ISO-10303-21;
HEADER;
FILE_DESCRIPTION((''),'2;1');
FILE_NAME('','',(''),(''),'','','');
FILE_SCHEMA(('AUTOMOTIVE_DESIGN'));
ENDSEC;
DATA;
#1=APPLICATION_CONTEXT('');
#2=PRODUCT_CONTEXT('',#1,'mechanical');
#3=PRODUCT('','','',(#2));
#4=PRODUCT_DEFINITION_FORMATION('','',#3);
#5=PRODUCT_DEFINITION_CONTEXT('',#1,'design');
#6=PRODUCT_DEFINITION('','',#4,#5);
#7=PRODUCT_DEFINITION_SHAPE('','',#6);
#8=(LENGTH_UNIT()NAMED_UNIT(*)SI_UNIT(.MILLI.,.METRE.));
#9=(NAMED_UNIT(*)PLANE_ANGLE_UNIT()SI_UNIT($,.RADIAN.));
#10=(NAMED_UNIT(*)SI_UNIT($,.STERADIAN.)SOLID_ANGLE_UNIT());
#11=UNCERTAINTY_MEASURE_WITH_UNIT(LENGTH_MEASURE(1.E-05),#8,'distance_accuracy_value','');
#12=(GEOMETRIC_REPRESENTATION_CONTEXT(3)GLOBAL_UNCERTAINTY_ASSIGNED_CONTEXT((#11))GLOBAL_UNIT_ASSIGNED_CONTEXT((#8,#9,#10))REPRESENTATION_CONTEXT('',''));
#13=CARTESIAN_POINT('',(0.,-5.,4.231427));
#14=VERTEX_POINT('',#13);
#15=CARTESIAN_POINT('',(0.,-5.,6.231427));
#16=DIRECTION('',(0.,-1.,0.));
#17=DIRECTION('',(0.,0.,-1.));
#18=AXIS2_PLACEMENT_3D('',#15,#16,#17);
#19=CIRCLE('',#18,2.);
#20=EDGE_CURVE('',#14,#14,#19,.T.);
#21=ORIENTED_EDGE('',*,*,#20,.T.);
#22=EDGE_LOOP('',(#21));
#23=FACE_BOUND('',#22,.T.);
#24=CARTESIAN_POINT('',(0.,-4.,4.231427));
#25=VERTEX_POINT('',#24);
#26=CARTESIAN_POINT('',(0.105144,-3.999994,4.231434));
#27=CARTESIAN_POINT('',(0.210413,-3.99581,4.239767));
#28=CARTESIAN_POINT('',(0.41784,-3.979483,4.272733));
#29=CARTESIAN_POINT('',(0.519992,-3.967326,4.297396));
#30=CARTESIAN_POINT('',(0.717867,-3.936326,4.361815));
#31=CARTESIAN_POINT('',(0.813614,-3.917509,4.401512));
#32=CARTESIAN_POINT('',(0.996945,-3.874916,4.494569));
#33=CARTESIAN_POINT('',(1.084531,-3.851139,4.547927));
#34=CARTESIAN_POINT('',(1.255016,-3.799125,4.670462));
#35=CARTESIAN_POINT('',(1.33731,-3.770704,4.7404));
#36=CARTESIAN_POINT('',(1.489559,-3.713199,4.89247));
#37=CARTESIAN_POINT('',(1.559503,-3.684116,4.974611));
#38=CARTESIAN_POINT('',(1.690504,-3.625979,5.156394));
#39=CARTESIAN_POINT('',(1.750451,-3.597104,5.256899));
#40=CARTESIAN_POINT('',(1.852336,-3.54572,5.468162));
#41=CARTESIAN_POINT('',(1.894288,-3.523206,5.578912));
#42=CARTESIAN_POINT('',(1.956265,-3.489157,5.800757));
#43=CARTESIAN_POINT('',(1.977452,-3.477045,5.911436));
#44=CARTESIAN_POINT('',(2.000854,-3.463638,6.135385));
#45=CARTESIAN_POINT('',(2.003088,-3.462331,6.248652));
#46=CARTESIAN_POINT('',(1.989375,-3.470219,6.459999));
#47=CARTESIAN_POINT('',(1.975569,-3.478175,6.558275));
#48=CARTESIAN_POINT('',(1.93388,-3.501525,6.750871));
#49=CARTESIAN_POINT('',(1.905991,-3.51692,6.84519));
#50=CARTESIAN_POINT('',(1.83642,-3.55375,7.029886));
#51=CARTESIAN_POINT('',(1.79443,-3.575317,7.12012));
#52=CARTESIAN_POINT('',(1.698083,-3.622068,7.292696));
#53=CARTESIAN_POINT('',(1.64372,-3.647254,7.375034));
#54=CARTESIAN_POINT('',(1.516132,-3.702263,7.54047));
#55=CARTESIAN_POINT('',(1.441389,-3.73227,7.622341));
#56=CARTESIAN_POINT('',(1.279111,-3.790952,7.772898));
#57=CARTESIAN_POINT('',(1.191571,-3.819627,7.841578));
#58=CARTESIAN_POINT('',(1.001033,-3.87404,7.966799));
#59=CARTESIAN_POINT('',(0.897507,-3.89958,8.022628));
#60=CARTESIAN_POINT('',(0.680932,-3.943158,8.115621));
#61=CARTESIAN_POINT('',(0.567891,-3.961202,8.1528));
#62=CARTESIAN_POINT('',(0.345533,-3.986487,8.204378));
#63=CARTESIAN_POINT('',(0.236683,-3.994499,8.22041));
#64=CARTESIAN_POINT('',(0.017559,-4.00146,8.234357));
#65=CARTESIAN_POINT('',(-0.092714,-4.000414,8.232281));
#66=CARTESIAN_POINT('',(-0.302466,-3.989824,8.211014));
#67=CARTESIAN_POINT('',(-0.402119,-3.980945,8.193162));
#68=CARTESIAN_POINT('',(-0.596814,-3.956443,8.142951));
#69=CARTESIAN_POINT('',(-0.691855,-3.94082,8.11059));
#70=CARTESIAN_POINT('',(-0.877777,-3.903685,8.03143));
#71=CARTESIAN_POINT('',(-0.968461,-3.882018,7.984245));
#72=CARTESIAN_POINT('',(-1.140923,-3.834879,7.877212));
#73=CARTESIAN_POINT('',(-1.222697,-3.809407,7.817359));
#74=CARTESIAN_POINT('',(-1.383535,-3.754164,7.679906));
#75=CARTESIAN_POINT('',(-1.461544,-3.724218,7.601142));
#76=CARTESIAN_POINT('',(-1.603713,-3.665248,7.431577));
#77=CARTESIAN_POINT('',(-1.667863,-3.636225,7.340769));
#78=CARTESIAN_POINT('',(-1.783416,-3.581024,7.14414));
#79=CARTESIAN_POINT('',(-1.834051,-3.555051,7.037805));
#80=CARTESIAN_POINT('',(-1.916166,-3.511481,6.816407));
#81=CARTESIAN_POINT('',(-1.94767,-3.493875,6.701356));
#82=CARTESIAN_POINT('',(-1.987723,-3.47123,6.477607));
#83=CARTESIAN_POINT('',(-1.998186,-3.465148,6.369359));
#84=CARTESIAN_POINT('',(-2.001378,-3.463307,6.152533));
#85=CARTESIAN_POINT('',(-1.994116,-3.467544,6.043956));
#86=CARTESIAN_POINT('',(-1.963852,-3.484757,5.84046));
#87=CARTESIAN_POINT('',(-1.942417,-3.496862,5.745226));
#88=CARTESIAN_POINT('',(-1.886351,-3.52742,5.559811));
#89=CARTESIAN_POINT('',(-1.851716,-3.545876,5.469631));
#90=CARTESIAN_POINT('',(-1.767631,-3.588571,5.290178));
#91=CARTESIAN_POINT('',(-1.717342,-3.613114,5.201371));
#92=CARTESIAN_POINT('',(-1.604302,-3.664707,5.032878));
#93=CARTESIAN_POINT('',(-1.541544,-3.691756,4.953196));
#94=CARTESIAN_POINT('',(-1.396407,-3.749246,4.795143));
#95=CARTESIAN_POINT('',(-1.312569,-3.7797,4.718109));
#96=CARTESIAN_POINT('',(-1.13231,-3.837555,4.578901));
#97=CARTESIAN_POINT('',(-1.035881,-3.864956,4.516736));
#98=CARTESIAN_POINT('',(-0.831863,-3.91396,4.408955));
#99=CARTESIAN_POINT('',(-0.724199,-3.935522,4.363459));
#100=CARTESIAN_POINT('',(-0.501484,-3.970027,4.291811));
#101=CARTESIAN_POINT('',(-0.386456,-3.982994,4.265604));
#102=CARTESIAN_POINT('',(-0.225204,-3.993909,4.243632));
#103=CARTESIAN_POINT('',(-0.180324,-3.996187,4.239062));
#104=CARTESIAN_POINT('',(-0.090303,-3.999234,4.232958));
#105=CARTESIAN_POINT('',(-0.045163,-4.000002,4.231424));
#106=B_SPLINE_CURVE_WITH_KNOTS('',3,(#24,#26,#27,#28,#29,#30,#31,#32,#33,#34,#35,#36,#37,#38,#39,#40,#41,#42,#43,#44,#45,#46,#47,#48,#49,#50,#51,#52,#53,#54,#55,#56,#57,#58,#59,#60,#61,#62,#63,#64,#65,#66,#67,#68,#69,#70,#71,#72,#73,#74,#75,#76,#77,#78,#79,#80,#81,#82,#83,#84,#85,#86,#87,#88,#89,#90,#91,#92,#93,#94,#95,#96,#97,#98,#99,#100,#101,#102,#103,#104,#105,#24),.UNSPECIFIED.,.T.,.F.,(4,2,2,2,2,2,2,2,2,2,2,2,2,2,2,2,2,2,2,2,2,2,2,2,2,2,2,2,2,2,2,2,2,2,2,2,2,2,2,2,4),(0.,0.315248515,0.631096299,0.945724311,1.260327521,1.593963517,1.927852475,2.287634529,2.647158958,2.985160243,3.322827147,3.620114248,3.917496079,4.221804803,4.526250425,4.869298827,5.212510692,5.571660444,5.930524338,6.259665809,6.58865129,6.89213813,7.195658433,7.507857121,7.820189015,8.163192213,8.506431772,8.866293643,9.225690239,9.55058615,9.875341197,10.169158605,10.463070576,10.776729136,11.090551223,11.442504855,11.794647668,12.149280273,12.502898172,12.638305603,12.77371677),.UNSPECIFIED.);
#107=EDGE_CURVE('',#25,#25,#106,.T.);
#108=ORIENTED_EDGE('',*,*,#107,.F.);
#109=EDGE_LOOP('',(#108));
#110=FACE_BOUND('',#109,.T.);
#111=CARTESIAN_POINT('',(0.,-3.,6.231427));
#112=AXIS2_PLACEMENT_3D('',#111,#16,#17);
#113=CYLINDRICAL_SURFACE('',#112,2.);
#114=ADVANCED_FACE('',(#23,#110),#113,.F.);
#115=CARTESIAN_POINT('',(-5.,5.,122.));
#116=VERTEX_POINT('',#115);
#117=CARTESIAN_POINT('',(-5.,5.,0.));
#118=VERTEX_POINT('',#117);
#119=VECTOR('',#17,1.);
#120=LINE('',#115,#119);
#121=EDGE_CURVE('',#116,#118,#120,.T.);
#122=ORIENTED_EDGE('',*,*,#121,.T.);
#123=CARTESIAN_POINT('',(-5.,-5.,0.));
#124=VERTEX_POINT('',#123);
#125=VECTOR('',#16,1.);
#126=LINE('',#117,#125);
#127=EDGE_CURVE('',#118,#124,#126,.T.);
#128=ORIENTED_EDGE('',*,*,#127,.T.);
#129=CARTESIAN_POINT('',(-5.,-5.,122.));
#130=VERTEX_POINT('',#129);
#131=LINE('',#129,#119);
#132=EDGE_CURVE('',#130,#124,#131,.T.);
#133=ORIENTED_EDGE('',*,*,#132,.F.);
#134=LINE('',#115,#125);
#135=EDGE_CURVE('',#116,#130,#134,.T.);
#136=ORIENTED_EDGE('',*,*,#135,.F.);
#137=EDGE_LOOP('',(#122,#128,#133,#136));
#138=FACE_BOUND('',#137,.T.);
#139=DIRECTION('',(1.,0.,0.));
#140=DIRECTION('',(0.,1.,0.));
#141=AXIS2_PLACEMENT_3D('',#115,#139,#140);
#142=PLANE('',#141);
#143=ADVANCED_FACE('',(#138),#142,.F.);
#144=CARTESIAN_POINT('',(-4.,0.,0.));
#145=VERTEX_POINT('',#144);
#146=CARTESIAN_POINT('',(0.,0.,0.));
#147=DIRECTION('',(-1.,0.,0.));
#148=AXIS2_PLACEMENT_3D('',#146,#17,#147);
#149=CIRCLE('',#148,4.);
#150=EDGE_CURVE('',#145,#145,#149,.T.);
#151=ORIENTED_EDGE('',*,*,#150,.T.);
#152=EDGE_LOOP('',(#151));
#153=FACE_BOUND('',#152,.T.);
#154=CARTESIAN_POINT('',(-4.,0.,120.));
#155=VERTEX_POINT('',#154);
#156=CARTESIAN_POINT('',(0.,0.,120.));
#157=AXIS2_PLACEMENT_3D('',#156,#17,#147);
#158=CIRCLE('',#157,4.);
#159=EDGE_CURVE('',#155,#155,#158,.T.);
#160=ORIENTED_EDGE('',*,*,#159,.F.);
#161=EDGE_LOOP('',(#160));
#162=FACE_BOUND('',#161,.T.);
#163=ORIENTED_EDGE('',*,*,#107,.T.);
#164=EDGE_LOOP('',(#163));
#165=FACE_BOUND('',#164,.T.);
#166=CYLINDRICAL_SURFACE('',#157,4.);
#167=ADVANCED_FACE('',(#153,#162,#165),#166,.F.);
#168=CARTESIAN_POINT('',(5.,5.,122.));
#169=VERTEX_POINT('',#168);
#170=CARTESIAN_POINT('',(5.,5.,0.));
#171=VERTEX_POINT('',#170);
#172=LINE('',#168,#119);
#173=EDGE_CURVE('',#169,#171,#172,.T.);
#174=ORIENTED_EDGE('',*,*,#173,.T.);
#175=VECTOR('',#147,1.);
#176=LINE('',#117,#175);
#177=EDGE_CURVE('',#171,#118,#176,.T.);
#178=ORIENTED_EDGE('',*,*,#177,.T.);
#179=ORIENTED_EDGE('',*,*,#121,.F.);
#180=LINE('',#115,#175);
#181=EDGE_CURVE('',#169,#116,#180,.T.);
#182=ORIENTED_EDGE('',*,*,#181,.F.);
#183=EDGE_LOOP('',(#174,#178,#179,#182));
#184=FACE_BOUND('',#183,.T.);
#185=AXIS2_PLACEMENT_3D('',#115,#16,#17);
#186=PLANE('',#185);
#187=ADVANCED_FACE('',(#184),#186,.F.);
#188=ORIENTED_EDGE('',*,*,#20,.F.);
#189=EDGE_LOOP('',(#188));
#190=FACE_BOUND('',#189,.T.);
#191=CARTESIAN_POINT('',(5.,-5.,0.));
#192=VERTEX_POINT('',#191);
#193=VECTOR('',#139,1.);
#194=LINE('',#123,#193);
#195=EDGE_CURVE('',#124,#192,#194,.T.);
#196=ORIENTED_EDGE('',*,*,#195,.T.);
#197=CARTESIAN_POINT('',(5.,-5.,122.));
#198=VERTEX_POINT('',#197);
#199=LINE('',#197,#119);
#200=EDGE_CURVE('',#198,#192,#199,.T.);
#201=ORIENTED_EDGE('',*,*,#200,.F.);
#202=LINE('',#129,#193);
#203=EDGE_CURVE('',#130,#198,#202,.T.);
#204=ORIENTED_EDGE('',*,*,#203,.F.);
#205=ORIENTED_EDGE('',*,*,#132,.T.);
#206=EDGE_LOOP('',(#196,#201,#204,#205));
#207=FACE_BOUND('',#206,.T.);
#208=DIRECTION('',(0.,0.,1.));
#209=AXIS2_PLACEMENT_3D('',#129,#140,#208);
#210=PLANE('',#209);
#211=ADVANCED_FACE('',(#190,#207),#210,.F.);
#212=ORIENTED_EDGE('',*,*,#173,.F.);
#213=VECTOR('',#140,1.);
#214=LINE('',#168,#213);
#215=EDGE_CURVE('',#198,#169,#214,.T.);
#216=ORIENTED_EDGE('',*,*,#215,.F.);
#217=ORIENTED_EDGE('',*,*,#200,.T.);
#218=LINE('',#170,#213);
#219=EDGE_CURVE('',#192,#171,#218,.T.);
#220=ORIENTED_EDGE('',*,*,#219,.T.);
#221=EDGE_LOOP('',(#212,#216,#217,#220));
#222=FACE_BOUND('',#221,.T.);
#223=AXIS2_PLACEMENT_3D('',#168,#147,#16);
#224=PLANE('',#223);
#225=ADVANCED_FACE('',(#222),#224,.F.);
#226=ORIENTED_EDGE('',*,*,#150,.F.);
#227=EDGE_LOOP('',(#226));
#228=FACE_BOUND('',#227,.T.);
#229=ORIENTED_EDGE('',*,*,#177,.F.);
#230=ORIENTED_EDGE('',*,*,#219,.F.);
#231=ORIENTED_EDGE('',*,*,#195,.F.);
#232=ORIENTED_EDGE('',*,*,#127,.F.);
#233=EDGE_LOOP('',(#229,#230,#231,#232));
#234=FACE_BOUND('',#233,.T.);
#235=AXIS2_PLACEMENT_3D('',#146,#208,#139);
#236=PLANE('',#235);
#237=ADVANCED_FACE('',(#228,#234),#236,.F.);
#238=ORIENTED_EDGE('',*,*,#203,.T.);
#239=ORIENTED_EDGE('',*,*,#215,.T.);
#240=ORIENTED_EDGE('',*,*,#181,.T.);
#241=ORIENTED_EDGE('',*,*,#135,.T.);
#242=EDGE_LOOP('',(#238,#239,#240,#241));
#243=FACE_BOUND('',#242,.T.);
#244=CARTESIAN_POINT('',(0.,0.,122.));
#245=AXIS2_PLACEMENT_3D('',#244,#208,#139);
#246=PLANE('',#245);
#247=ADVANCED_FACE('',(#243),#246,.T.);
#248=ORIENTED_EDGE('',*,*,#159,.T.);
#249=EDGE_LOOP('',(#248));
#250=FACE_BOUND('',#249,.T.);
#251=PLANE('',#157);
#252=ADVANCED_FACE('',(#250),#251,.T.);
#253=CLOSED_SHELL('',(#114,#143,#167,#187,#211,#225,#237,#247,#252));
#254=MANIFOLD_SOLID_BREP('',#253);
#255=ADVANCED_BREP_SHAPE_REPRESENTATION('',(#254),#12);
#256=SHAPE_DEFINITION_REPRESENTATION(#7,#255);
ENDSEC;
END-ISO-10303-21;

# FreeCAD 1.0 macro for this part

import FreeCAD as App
import Part
import Sketcher
from FreeCAD import Vector
Q = App.Units.Quantity


def add_polygon(sketch, points):
    """Adds a closed chain of lines whose ends are joined by coincident constraints."""
    first, n = sketch.GeometryCount, len(points)
    for a, b in zip(points, points[1:] + points[:1]):
        sketch.addGeometry(Part.LineSegment(App.Vector(*a, 0), App.Vector(*b, 0)), False)
    for i in range(n):
        sketch.addConstraint(Sketcher.Constraint("Coincident", first + i, 2, first + (i + 1) % n, 1))

doc = App.newDocument("Part")
params = doc.addObject("Spreadsheet::Sheet", "Params")
for row, (alias, value) in enumerate([
    ("sketch1_width", "10 mm"),
    ("pad1_length", "122 mm"),
    ("sketch2_diameter", "8 mm"),
    ("pocket1_length", "120 mm"),
    ("sketch3_diameter", "4 mm"),
    ("pocket2_length", "2 mm"),
], start=1):
    params.set(f"A{row}", alias)
    params.set(f"B{row}", "=" + value)
    params.setAlias(f"B{row}", alias)

body = doc.addObject("PartDesign::Body", "Body")

# Sketch on XY plane
sketch1 = body.newObject("Sketcher::SketchObject", "Sketch")
sketch1.AttachmentSupport = (doc.getObject("XY_Plane"), [""])
sketch1.MapMode = "FlatFace"
add_polygon(sketch1, [(-5, 5), (-5, -5), (5, -5), (5, 5)])  # lines 0-3
sketch1.addConstraint(Sketcher.Constraint("Vertical", 0))
sketch1.addConstraint(Sketcher.Constraint("Horizontal", 1))
sketch1.addConstraint(Sketcher.Constraint("Vertical", 2))
sketch1.addConstraint(Sketcher.Constraint("Horizontal", 3))
sketch1.addConstraint(Sketcher.Constraint("Symmetric", 0, 2, 2, 2, -1, 1))
sketch1.addConstraint(Sketcher.Constraint("Equal", 3, 0))
sketch1.addConstraint(Sketcher.Constraint("DistanceX", 1, 1, 1, 2, Q("10 mm")))
sketch1.setExpression("Constraints[10]", "Params.sketch1_width")
pad1 = body.newObject("PartDesign::Pad", "Pad")
pad1.Profile = sketch1
pad1.setExpression("Length", "Params.pad1_length")

# Sketch on XY plane
sketch2 = body.newObject("Sketcher::SketchObject", "Sketch001")
sketch2.AttachmentSupport = (doc.getObject("XY_Plane"), [""])
sketch2.MapMode = "FlatFace"
sketch2.addGeometry(Part.Circle(Vector(0, 0, 0), Vector(0, 0, 1), 4), False)
sketch2.addConstraint(Sketcher.Constraint("Coincident", 0, 3, -1, 1))
sketch2.addConstraint(Sketcher.Constraint("Diameter", 0, Q("8 mm")))
sketch2.setExpression("Constraints[1]", "Params.sketch2_diameter")
pocket1 = body.newObject("PartDesign::Pocket", "Pocket")
pocket1.Profile = sketch2
pocket1.setExpression("Length", "Params.pocket1_length")
pocket1.Reversed = True

# Sketch on XZ plane
sketch3 = body.newObject("Sketcher::SketchObject", "Sketch002")
sketch3.AttachmentSupport = (doc.getObject("XZ_Plane"), [""])
sketch3.MapMode = "FlatFace"
sketch3.AttachmentOffset = App.Placement(Vector(0, 0, 5), App.Rotation())
sketch3.addGeometry(Part.Circle(Vector(0, 6.2, 0), Vector(0, 0, 1), 2), False)
sketch3.addConstraint(Sketcher.Constraint("PointOnObject", 0, 3, -2))
sketch3.addConstraint(Sketcher.Constraint("Diameter", 0, Q("4 mm")))
sketch3.addConstraint(Sketcher.Constraint("DistanceY", -1, 1, 0, 3, Q("6.231427 mm")))
sketch3.setExpression("Constraints[1]", "Params.sketch3_diameter")
pocket2 = body.newObject("PartDesign::Pocket", "Pocket001")
pocket2.Profile = sketch3
pocket2.setExpression("Length", "Params.pocket2_length")

doc.recompute()
